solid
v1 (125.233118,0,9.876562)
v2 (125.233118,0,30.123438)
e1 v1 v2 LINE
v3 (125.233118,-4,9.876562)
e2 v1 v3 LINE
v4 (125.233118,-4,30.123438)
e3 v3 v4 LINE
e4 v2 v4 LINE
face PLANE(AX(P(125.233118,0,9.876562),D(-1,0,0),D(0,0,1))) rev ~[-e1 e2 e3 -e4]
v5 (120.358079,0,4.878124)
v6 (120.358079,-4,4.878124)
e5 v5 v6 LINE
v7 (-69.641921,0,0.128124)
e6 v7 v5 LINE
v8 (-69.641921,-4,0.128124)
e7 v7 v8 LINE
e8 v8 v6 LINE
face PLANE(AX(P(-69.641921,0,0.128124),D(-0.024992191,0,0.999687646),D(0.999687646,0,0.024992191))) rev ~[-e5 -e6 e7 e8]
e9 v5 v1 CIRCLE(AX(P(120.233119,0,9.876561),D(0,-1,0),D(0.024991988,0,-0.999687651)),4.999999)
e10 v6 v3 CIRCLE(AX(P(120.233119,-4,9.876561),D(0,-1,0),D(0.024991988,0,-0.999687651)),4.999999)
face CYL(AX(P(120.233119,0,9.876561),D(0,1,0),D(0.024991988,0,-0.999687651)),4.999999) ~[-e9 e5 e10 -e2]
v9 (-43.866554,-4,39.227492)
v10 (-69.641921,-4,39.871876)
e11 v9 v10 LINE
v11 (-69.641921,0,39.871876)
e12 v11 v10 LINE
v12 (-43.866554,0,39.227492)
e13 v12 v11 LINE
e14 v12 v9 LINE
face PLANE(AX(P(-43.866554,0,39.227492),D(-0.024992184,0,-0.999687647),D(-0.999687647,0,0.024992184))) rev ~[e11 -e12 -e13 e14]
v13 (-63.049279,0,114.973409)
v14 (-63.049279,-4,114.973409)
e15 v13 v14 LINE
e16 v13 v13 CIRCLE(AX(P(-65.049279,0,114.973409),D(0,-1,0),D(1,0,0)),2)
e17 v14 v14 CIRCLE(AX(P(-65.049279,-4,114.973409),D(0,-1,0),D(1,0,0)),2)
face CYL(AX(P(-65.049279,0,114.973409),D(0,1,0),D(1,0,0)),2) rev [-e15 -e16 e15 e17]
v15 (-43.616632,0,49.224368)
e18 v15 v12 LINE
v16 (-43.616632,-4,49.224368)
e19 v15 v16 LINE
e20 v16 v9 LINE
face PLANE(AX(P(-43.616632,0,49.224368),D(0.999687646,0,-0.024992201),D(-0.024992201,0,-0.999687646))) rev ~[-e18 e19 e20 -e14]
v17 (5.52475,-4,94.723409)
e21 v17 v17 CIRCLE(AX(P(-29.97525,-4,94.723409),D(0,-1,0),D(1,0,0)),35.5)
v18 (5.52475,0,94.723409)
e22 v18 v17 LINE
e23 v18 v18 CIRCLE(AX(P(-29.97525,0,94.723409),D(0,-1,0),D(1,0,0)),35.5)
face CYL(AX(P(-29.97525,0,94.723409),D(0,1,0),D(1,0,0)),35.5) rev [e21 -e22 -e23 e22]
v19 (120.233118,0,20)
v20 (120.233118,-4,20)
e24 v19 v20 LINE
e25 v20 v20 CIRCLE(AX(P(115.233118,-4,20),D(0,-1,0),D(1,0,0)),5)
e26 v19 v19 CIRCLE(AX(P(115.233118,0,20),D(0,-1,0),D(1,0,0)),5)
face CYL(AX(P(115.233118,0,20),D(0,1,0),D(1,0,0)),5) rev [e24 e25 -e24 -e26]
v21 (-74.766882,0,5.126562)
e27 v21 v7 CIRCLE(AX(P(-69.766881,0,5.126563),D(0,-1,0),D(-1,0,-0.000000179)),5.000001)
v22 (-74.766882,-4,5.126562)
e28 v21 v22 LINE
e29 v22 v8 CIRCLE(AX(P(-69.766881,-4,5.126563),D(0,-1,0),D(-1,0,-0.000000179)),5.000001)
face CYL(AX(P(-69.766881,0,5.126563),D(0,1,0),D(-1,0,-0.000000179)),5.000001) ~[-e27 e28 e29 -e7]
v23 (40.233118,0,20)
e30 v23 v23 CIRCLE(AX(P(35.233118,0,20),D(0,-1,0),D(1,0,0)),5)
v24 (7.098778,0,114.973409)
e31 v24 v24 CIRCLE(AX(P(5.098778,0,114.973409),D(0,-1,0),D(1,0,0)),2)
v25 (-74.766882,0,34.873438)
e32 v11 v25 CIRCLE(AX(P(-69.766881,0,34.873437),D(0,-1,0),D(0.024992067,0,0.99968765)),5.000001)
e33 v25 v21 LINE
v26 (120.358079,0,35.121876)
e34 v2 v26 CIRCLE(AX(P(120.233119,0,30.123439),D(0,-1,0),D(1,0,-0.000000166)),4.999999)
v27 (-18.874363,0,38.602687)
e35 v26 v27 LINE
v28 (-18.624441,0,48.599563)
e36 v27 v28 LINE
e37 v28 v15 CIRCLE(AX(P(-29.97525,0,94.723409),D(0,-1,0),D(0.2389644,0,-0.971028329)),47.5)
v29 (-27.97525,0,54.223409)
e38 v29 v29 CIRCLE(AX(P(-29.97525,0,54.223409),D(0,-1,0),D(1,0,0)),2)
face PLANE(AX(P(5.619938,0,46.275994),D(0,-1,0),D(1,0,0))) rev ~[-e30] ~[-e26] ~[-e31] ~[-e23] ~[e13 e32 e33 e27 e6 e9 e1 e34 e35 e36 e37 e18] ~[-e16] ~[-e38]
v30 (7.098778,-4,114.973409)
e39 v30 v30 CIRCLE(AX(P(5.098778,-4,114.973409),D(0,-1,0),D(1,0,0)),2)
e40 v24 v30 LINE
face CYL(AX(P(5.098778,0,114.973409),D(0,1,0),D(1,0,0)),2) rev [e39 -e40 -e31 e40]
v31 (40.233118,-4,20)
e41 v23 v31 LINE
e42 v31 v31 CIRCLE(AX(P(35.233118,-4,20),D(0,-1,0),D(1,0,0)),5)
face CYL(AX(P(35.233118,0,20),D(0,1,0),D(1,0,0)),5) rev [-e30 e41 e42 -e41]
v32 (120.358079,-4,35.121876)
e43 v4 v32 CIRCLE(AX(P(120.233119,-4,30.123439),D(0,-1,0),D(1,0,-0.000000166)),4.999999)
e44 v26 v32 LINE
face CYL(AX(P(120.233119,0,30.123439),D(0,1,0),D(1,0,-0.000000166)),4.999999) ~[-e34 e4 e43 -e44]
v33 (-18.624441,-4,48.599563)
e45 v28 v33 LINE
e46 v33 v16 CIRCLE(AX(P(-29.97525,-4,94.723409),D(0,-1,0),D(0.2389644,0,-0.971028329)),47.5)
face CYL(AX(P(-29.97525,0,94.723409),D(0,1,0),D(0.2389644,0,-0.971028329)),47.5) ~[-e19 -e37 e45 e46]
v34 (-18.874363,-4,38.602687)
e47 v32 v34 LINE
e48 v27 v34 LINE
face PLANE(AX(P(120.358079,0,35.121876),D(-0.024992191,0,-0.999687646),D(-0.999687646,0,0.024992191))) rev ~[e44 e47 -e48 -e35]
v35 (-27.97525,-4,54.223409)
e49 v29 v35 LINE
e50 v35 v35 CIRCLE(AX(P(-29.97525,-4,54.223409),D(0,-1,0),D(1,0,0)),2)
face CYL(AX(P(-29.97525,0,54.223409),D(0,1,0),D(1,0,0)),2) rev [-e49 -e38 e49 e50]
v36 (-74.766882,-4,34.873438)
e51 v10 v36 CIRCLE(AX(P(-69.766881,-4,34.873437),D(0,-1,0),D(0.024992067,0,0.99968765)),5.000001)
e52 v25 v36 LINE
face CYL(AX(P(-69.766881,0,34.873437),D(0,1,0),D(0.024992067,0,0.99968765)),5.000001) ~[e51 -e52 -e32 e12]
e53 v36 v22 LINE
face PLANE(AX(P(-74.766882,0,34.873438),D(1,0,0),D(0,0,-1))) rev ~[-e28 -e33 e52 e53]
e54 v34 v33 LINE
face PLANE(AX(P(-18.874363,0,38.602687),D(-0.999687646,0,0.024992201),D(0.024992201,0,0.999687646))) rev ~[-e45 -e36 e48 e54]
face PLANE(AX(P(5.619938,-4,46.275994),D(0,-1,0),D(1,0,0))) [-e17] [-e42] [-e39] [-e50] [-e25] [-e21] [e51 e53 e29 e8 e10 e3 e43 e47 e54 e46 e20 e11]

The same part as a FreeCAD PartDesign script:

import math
import FreeCAD as App
import Part
import Sketcher

V = App.Vector

doc = App.newDocument("Part")
body = doc.addObject("PartDesign::Body", "Body")

# Sketch on XZ plane
sketch1 = doc.addObject("Sketcher::SketchObject", "Sketch")
body.addObject(sketch1)
sketch1.AttachmentSupport = (doc.XZ_Plane, [""])
sketch1.MapMode = "FlatFace"
sketch1.addGeometry(Part.ArcOfCircle(Part.Circle(V(-69.8, 34.9, 0), V(0, 0, 1), 5), math.radians(89), math.radians(180)), False)
sketch1.addGeometry(Part.LineSegment(V(-74.8, 34.9, 0), V(-74.8, 5.1, 0)), False)
sketch1.addGeometry(Part.ArcOfCircle(Part.Circle(V(-69.8, 5.1, 0), V(0, 0, 1), 5), math.radians(-180), math.radians(-89)), False)
sketch1.addGeometry(Part.LineSegment(V(-69.6, 0.1, 0), V(120.4, 4.9, 0)), False)
sketch1.addGeometry(Part.ArcOfCircle(Part.Circle(V(120.2, 9.9, 0), V(0, 0, 1), 5), math.radians(-89), math.radians(0)), False)
sketch1.addGeometry(Part.LineSegment(V(125.2, 9.9, 0), V(125.2, 30.1, 0)), False)
sketch1.addGeometry(Part.ArcOfCircle(Part.Circle(V(120.2, 30.1, 0), V(0, 0, 1), 5), math.radians(0), math.radians(89)), False)
sketch1.addGeometry(Part.LineSegment(V(120.4, 35.1, 0), V(-18.9, 38.6, 0)), False)
sketch1.addGeometry(Part.LineSegment(V(-18.9, 38.6, 0), V(-18.6, 48.6, 0)), False)
sketch1.addGeometry(Part.ArcOfCircle(Part.Circle(V(-30, 94.7, 0), V(0, 0, 1), 47.5), math.radians(-76), math.radians(253)), False)
sketch1.addGeometry(Part.LineSegment(V(-43.6, 49.2, 0), V(-43.9, 39.2, 0)), False)
sketch1.addGeometry(Part.LineSegment(V(-43.9, 39.2, 0), V(-69.6, 39.9, 0)), False)
sketch1.addGeometry(Part.Circle(V(-30, 54.2, 0), V(0, 0, 1), 2), False)
sketch1.addGeometry(Part.Circle(V(35.2, 20, 0), V(0, 0, 1), 5), False)
sketch1.addGeometry(Part.Circle(V(115.2, 20, 0), V(0, 0, 1), 5), False)
sketch1.addGeometry(Part.Circle(V(-30, 94.7, 0), V(0, 0, 1), 35.5), False)
sketch1.addGeometry(Part.Circle(V(-65, 115, 0), V(0, 0, 1), 2), False)
sketch1.addGeometry(Part.Circle(V(5.1, 115, 0), V(0, 0, 1), 2), False)
sketch1.addConstraint(Sketcher.Constraint("Tangent", 0, 2, 1, 1))
sketch1.addConstraint(Sketcher.Constraint("Tangent", 1, 2, 2, 1))
sketch1.addConstraint(Sketcher.Constraint("Tangent", 2, 2, 3, 1))
sketch1.addConstraint(Sketcher.Constraint("Tangent", 3, 2, 4, 1))
sketch1.addConstraint(Sketcher.Constraint("Tangent", 4, 2, 5, 1))
sketch1.addConstraint(Sketcher.Constraint("Tangent", 5, 2, 6, 1))
sketch1.addConstraint(Sketcher.Constraint("Tangent", 6, 2, 7, 1))
sketch1.addConstraint(Sketcher.Constraint("Coincident", 7, 2, 8, 1))
sketch1.addConstraint(Sketcher.Constraint("Coincident", 8, 2, 9, 1))
sketch1.addConstraint(Sketcher.Constraint("Coincident", 9, 2, 10, 1))
sketch1.addConstraint(Sketcher.Constraint("Coincident", 10, 2, 11, 1))
sketch1.addConstraint(Sketcher.Constraint("Tangent", 11, 2, 0, 1))
sketch1.addConstraint(Sketcher.Constraint("Vertical", 1))
sketch1.addConstraint(Sketcher.Constraint("Vertical", 5))
sketch1.addConstraint(Sketcher.Constraint("Coincident", 15, 3, 9, 3))
sketch1.addConstraint(Sketcher.Constraint("Equal", 0, 2))
sketch1.addConstraint(Sketcher.Constraint("Equal", 2, 4))
sketch1.addConstraint(Sketcher.Constraint("Equal", 4, 6))
sketch1.addConstraint(Sketcher.Constraint("Equal", 6, 13))
sketch1.addConstraint(Sketcher.Constraint("Equal", 13, 14))
sketch1.addConstraint(Sketcher.Constraint("Equal", 12, 16))
sketch1.addConstraint(Sketcher.Constraint("Equal", 16, 17))
sketch1.addConstraint(Sketcher.Constraint("Perpendicular", 7, 8))
sketch1.addConstraint(Sketcher.Constraint("Parallel", 8, 10))
sketch1.addConstraint(Sketcher.Constraint("Perpendicular", 10, 11))
sketch1.addConstraint(Sketcher.Constraint("Horizontal", 13, 3, 14, 3))
sketch1.addConstraint(Sketcher.Constraint("Horizontal", 16, 3, 17, 3))
sketch1.addConstraint(Sketcher.Constraint("Vertical", 9, 3, 12, 3))
sketch1.addConstraint(Sketcher.Constraint("Vertical", 3, 2, 6, 2))
sketch1.addConstraint(Sketcher.Constraint("Equal", 8, 10))
sketch1.addConstraint(Sketcher.Constraint("Diameter", 12, 4.0))
sketch1.addConstraint(Sketcher.Constraint("Diameter", 13, 10.0))
sketch1.addConstraint(Sketcher.Constraint("Diameter", 15, 71.0))
sketch1.addConstraint(Sketcher.Constraint("Radius", 9, 47.5))
sketch1.addConstraint(Sketcher.Constraint("Distance", 8, 10.0))
sketch1.addConstraint(Sketcher.Constraint("DistanceY", -1, 1, 13, 3, 20.0))
sketch1.addConstraint(Sketcher.Constraint("DistanceX", 2, 3, 4, 3, 190.0))
sketch1.addConstraint(Sketcher.Constraint("DistanceX", 13, 3, 4, 3, 85.000001))
sketch1.addConstraint(Sketcher.Constraint("DistanceX", 14, 3, 4, 3, 5.000001))
sketch1.addConstraint(Sketcher.Constraint("DistanceY", 12, 3, 9, 3, 40.5))
sketch1.addConstraint(Sketcher.Constraint("DistanceY", 2, 3, 4, 3, 4.749998))
sketch1.addConstraint(Sketcher.Constraint("DistanceY", 6, 3, 0, 3, 4.749998))
sketch1.addConstraint(Sketcher.Constraint("DistanceY", 15, 3, 16, 3, 20.25))
sketch1.addConstraint(Sketcher.Constraint("Distance", 11, 25.783421))
sketch1.addConstraint(Sketcher.Constraint("DistanceY", 1, 2, 1, 1, 29.746876))
sketch1.addConstraint(Sketcher.Constraint("DistanceX", 0, 3, -1, 1, 69.766881))
sketch1.addConstraint(Sketcher.Constraint("DistanceY", -1, 1, 4, 3, 9.876561))
sketch1.addConstraint(Sketcher.Constraint("DistanceX", 9, 3, -1, 1, 29.97525))
sketch1.addConstraint(Sketcher.Constraint("DistanceX", 16, 3, -1, 1, 65.049279))
sketch1.addConstraint(Sketcher.Constraint("DistanceX", -1, 1, 17, 3, 5.098778))
pad1 = doc.addObject("PartDesign::Pad", "Pad")
body.addObject(pad1)
pad1.Profile = sketch1
pad1.Length = 4

doc.recompute()
